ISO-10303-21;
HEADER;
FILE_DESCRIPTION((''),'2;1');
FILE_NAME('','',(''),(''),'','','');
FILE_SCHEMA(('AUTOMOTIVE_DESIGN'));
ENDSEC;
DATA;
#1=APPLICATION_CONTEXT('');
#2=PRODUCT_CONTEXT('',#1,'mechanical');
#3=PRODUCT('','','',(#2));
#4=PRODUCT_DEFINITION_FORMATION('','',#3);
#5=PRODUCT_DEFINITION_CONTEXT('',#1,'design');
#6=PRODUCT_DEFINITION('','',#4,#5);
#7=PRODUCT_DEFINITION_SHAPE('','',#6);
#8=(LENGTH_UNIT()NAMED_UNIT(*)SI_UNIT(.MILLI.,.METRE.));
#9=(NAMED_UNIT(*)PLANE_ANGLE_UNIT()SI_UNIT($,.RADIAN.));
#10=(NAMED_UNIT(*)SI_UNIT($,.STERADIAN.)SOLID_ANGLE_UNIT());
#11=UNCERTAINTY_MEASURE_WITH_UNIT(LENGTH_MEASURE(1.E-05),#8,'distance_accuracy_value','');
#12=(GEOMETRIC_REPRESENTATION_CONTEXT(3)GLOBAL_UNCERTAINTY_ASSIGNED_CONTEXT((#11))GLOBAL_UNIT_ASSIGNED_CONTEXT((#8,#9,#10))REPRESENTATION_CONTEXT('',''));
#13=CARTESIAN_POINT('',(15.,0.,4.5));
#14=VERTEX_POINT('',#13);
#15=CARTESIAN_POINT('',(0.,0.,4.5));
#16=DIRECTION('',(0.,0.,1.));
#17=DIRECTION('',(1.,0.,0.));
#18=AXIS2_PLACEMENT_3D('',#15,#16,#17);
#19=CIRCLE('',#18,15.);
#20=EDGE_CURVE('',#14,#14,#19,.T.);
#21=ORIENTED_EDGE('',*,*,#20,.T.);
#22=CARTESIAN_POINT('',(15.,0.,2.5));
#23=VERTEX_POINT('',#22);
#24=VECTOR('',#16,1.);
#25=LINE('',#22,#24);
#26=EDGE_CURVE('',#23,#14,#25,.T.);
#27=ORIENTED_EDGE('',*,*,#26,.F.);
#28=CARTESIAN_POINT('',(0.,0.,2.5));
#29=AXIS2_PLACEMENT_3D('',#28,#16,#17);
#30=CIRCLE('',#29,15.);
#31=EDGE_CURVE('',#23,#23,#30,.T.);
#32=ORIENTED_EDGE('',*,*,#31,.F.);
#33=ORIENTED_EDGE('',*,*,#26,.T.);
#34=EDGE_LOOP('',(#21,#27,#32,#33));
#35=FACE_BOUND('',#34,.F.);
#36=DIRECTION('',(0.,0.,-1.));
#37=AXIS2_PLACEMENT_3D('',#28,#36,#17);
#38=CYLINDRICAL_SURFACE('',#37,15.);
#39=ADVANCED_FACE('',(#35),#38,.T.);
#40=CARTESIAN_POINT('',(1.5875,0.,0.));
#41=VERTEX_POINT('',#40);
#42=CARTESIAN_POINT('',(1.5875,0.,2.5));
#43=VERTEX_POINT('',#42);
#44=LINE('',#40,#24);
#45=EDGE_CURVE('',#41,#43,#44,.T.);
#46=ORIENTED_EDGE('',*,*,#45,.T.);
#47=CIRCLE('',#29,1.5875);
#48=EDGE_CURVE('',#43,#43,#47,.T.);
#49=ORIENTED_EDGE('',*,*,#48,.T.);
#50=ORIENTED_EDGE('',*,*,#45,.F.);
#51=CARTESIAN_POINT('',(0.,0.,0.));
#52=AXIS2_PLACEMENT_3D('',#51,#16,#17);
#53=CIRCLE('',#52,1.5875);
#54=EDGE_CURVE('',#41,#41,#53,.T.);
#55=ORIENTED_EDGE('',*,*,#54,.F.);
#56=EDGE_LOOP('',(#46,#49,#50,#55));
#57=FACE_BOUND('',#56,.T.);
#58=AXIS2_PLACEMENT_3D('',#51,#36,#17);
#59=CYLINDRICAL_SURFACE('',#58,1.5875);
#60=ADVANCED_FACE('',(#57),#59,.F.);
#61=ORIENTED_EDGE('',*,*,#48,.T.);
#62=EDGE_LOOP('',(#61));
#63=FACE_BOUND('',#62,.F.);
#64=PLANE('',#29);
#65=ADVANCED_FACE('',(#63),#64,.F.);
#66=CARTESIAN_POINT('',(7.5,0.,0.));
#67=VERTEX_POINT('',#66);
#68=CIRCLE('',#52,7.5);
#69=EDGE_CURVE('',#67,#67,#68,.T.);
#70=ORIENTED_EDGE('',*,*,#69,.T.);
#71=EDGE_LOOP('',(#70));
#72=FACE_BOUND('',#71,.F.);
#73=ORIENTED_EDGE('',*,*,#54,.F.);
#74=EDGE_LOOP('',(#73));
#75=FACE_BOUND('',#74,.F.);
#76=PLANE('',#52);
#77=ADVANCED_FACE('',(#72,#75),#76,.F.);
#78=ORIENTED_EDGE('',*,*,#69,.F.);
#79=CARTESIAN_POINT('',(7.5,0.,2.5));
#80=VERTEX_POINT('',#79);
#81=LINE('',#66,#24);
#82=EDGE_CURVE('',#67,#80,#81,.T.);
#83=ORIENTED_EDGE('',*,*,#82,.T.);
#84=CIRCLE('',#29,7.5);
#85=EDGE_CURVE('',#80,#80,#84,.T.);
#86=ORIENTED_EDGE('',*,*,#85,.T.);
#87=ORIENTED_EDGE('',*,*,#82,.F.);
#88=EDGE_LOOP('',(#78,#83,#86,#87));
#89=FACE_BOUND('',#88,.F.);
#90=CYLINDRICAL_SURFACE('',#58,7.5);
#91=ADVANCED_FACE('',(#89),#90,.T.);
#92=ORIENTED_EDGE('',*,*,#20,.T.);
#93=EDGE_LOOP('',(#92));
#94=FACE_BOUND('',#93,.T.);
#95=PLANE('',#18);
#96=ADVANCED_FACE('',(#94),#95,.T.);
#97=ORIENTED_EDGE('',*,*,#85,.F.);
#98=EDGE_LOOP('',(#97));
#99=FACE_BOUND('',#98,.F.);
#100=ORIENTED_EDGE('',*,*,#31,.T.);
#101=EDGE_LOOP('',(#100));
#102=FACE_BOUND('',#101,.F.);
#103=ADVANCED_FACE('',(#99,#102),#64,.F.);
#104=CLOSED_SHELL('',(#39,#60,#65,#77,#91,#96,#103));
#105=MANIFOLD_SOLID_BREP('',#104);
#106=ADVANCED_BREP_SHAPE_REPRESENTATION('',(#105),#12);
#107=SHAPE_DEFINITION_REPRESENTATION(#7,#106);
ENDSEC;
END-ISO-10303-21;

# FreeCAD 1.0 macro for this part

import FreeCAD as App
import Part
import Sketcher
Q = App.Units.Quantity

doc = App.newDocument("Part")
body = doc.addObject("PartDesign::Body", "Body")

sketch1 = doc.addObject("Sketcher::SketchObject", "Sketch")
body.addObject(sketch1)
sketch1.AttachmentSupport = (doc.XY_Plane, [""])
sketch1.MapMode = "FlatFace"
sketch1.addGeometry(Part.Circle(App.Vector(0, 0, 0), App.Vector(0, 0, 1), 7.5), False)
sketch1.addGeometry(Part.Circle(App.Vector(0, 0, 0), App.Vector(0, 0, 1), 1.5875), False)
sketch1.addConstraint(Sketcher.Constraint("Coincident", 0, 3, -1, 1))
sketch1.addConstraint(Sketcher.Constraint("Coincident", 1, 3, -1, 1))
sketch1.addConstraint(Sketcher.Constraint("Diameter", 0, Q("15 mm")))
sketch1.addConstraint(Sketcher.Constraint("Diameter", 1, Q("3.175 mm")))
pad1 = doc.addObject("PartDesign::Pad", "Pad")
body.addObject(pad1)
pad1.Profile = sketch1
pad1.Length = 2.5

sketch2 = doc.addObject("Sketcher::SketchObject", "Sketch001")
body.addObject(sketch2)
sketch2.AttachmentSupport = (doc.XY_Plane, [""])
sketch2.MapMode = "FlatFace"
sketch2.AttachmentOffset = App.Placement(App.Vector(0, 0, 2.5), App.Rotation())
sketch2.addGeometry(Part.Circle(App.Vector(0, 0, 0), App.Vector(0, 0, 1), 15), False)
sketch2.addConstraint(Sketcher.Constraint("Coincident", 0, 3, -1, 1))
sketch2.addConstraint(Sketcher.Constraint("Diameter", 0, Q("30 mm")))
pad2 = doc.addObject("PartDesign::Pad", "Pad001")
body.addObject(pad2)
pad2.Profile = sketch2
pad2.Length = 2

doc.recompute()
